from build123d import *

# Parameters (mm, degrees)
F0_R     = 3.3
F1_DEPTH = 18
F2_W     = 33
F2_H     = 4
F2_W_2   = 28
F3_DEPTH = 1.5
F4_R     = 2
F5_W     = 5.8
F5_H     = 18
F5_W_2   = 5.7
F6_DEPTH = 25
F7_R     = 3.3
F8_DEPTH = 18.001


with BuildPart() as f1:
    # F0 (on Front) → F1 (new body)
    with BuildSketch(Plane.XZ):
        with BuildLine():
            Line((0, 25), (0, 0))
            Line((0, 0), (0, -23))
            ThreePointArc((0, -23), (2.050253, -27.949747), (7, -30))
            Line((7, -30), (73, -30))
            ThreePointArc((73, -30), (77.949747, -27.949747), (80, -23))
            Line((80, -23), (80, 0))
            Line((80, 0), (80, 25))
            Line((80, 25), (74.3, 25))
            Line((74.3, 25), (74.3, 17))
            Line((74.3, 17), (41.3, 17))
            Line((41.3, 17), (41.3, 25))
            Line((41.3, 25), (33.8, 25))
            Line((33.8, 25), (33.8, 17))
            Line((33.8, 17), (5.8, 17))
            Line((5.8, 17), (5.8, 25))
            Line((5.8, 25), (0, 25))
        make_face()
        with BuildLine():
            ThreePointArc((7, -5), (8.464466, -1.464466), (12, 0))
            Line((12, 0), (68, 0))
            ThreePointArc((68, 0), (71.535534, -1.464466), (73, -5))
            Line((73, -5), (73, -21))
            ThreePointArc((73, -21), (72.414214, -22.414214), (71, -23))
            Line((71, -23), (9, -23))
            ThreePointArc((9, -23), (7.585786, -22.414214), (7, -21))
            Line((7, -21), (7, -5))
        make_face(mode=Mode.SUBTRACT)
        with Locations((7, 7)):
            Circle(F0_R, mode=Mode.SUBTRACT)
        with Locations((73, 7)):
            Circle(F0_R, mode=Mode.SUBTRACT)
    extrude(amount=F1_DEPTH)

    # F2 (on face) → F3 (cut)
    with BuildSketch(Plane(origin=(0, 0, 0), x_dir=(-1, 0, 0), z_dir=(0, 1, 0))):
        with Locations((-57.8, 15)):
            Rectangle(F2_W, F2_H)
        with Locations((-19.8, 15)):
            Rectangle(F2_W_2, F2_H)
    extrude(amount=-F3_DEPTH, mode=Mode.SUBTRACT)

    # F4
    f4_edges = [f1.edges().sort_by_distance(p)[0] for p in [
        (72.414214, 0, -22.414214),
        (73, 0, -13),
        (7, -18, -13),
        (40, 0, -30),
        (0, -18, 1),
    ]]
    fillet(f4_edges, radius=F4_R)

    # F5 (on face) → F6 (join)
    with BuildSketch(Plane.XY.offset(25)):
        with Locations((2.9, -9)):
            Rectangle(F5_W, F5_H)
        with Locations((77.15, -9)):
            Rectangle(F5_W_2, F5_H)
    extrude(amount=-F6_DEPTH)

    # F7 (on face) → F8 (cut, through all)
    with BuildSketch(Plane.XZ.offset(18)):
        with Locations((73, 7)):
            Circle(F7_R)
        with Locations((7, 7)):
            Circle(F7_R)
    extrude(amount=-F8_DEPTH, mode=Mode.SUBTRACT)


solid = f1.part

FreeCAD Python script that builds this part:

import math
import FreeCAD as App
import Part
import Sketcher
from FreeCAD import Vector
Q = App.Units.Quantity


def edges_at(feature, points):
    """Names of the edges that pass closest to the given points."""
    edges = feature.Shape.Edges
    near = lambda p: min(range(len(edges)), key=lambda i: edges[i].distToShape(Part.Vertex(*p))[0])
    return sorted({f"Edge{near(p) + 1}" for p in points})


def add_polygon(sketch, points):
    """Adds a closed chain of lines whose ends are joined by coincident constraints."""
    first, n = sketch.GeometryCount, len(points)
    for a, b in zip(points, points[1:] + points[:1]):
        sketch.addGeometry(Part.LineSegment(App.Vector(*a, 0), App.Vector(*b, 0)), False)
    for i in range(n):
        sketch.addConstraint(Sketcher.Constraint("Coincident", first + i, 2, first + (i + 1) % n, 1))

doc = App.newDocument("Part")
body = doc.addObject("PartDesign::Body", "Body")

# Sketch on XZ plane
sketch1 = doc.addObject("Sketcher::SketchObject", "Sketch")
body.addObject(sketch1)
sketch1.AttachmentSupport = (doc.XZ_Plane, [""])
sketch1.MapMode = "FlatFace"
sketch1.addGeometry([
    Part.LineSegment(Vector(0, 25, 0), Vector(0, -23, 0)),  # 0
    Part.ArcOfCircle(Part.Circle(Vector(7, -23, 0), Vector(0, 0, 1), 7), math.radians(-180), math.radians(-90)),  # 1
    Part.LineSegment(Vector(7, -30, 0), Vector(73, -30, 0)),  # 2
    Part.ArcOfCircle(Part.Circle(Vector(73, -23, 0), Vector(0, 0, 1), 7), math.radians(-90), math.radians(0)),  # 3
    Part.LineSegment(Vector(80, -23, 0), Vector(80, 25, 0)),  # 4
    Part.LineSegment(Vector(80, 25, 0), Vector(74.3, 25, 0)),  # 5
    Part.LineSegment(Vector(74.3, 25, 0), Vector(74.3, 17, 0)),  # 6
    Part.LineSegment(Vector(74.3, 17, 0), Vector(41.3, 17, 0)),  # 7
    Part.LineSegment(Vector(41.3, 17, 0), Vector(41.3, 25, 0)),  # 8
    Part.LineSegment(Vector(41.3, 25, 0), Vector(33.8, 25, 0)),  # 9
    Part.LineSegment(Vector(33.8, 25, 0), Vector(33.8, 17, 0)),  # 10
    Part.LineSegment(Vector(33.8, 17, 0), Vector(5.8, 17, 0)),  # 11
    Part.LineSegment(Vector(5.8, 17, 0), Vector(5.8, 25, 0)),  # 12
    Part.LineSegment(Vector(5.8, 25, 0), Vector(0, 25, 0)),  # 13
    Part.LineSegment(Vector(7, -21, 0), Vector(7, -5, 0)),  # 14
    Part.ArcOfCircle(Part.Circle(Vector(12, -5, 0), Vector(0, 0, 1), 5), math.radians(90), math.radians(180)),  # 15
    Part.LineSegment(Vector(12, 0, 0), Vector(68, 0, 0)),  # 16
    Part.ArcOfCircle(Part.Circle(Vector(68, -5, 0), Vector(0, 0, 1), 5), math.radians(0), math.radians(90)),  # 17
    Part.LineSegment(Vector(73, -5, 0), Vector(73, -21, 0)),  # 18
    Part.ArcOfCircle(Part.Circle(Vector(71, -21, 0), Vector(0, 0, 1), 2), math.radians(-90), math.radians(0)),  # 19
    Part.LineSegment(Vector(71, -23, 0), Vector(9, -23, 0)),  # 20
    Part.ArcOfCircle(Part.Circle(Vector(9, -21, 0), Vector(0, 0, 1), 2), math.radians(180), math.radians(270)),  # 21
    Part.Circle(Vector(7, 7, 0), Vector(0, 0, 1), 3.3),  # 22
    Part.Circle(Vector(73, 7, 0), Vector(0, 0, 1), 3.3),  # 23
], False)
sketch1.addConstraint([
    Sketcher.Constraint("Tangent", 0, 2, 1, 1),
    Sketcher.Constraint("Tangent", 1, 2, 2, 1),
    Sketcher.Constraint("Tangent", 2, 2, 3, 1),
    Sketcher.Constraint("Tangent", 3, 2, 4, 1),
    Sketcher.Constraint("Coincident", 4, 2, 5, 1),
    Sketcher.Constraint("Coincident", 5, 2, 6, 1),
    Sketcher.Constraint("Coincident", 6, 2, 7, 1),
    Sketcher.Constraint("Coincident", 7, 2, 8, 1),
    Sketcher.Constraint("Coincident", 8, 2, 9, 1),
    Sketcher.Constraint("Coincident", 9, 2, 10, 1),
    Sketcher.Constraint("Coincident", 10, 2, 11, 1),
    Sketcher.Constraint("Coincident", 11, 2, 12, 1),
    Sketcher.Constraint("Coincident", 12, 2, 13, 1),
    Sketcher.Constraint("Coincident", 13, 2, 0, 1),
    Sketcher.Constraint("Tangent", 14, 2, 15, 2),
    Sketcher.Constraint("Tangent", 15, 1, 16, 1),
    Sketcher.Constraint("Tangent", 16, 2, 17, 2),
    Sketcher.Constraint("Tangent", 17, 1, 18, 1),
    Sketcher.Constraint("Tangent", 18, 2, 19, 2),
    Sketcher.Constraint("Tangent", 19, 1, 20, 1),
    Sketcher.Constraint("Tangent", 20, 2, 21, 2),
    Sketcher.Constraint("Tangent", 21, 1, 14, 1),
    Sketcher.Constraint("Vertical", 0),
    Sketcher.Constraint("Horizontal", 2),
    Sketcher.Constraint("Vertical", 4),
    Sketcher.Constraint("Horizontal", 5),
    Sketcher.Constraint("Vertical", 6),
    Sketcher.Constraint("Horizontal", 7),
    Sketcher.Constraint("Vertical", 8),
    Sketcher.Constraint("Horizontal", 9),
    Sketcher.Constraint("Vertical", 10),
    Sketcher.Constraint("Horizontal", 11),
    Sketcher.Constraint("Vertical", 12),
    Sketcher.Constraint("Horizontal", 13),
    Sketcher.Constraint("Vertical", 14),
    Sketcher.Constraint("Horizontal", 16),
    Sketcher.Constraint("Vertical", 18),
    Sketcher.Constraint("Horizontal", 20),
    Sketcher.Constraint("Equal", 1, 3),
    Sketcher.Constraint("Equal", 15, 17),
    Sketcher.Constraint("Equal", 19, 21),
    Sketcher.Constraint("Equal", 22, 23),
    Sketcher.Constraint("PointOnObject", 0, 2, -2),
    Sketcher.Constraint("PointOnObject", 15, 1, -1),
    Sketcher.Constraint("Horizontal", 22, 3, 23, 3),
    Sketcher.Constraint("Horizontal", 5, 2, 8, 2),
    Sketcher.Constraint("Horizontal", 7, 2, 10, 2),
    Sketcher.Constraint("Horizontal", 9, 2, 12, 2),
    Sketcher.Constraint("Horizontal", 3, 2, 19, 1),
    Sketcher.Constraint("Vertical", 1, 3, 22, 3),
    Sketcher.Constraint("Vertical", 3, 3, 23, 3),
    Sketcher.Constraint("Vertical", 1, 2, 14, 2),
    Sketcher.Constraint("Vertical", 2, 2, 17, 1),
    Sketcher.Constraint("Radius", 1, Q("7.000002 mm")),
    Sketcher.Constraint("Radius", 15, Q("5 mm")),
    Sketcher.Constraint("Radius", 19, Q("1.999999 mm")),
    Sketcher.Constraint("Diameter", 22, Q("6.6 mm")),
    Sketcher.Constraint("DistanceX", 2, 1, 2, 2, Q("66 mm")),
    Sketcher.Constraint("DistanceX", 7, 2, 7, 1, Q("33 mm")),
    Sketcher.Constraint("DistanceX", 11, 2, 11, 1, Q("28 mm")),
    Sketcher.Constraint("DistanceY", 0, 2, 0, 1, Q("48 mm")),
    Sketcher.Constraint("DistanceY", 6, 2, 6, 1, Q("8 mm")),
    Sketcher.Constraint("DistanceY", 14, 1, 14, 2, Q("16 mm")),
    Sketcher.Constraint("DistanceX", 5, 2, 5, 1, Q("5.7 mm")),
    Sketcher.Constraint("DistanceX", 9, 2, 9, 1, Q("7.5 mm")),
    Sketcher.Constraint("DistanceY", -1, 1, 22, 3, Q("7 mm")),
])
pad1 = doc.addObject("PartDesign::Pad", "Pad")
body.addObject(pad1)
pad1.Profile = sketch1
pad1.Length = 18

# Sketch on XZ plane
sketch2 = doc.addObject("Sketcher::SketchObject", "Sketch001")
body.addObject(sketch2)
sketch2.AttachmentSupport = (doc.XZ_Plane, [""])
sketch2.MapMode = "FlatFace"
add_polygon(sketch2, [(74.3, 17), (74.3, 13), (41.3, 13), (41.3, 17)])  # lines 0-3
add_polygon(sketch2, [(33.8, 17), (33.8, 13), (5.8, 13), (5.8, 17)])  # lines 4-7
sketch2.addConstraint([
    Sketcher.Constraint("Vertical", 0),
    Sketcher.Constraint("Horizontal", 1),
    Sketcher.Constraint("Vertical", 2),
    Sketcher.Constraint("Horizontal", 3),
    Sketcher.Constraint("Vertical", 4),
    Sketcher.Constraint("Horizontal", 5),
    Sketcher.Constraint("Vertical", 6),
    Sketcher.Constraint("Horizontal", 7),
    Sketcher.Constraint("Horizontal", 1, 2, 4, 2),
    Sketcher.Constraint("Horizontal", 3, 2, 6, 2),
    Sketcher.Constraint("DistanceX", 1, 2, 1, 1, Q("33 mm")),
    Sketcher.Constraint("DistanceX", 5, 2, 5, 1, Q("28 mm")),
    Sketcher.Constraint("DistanceY", 0, 2, 0, 1, Q("4 mm")),
    Sketcher.Constraint("DistanceY", -1, 1, 0, 2, Q("13 mm")),
    Sketcher.Constraint("DistanceX", -1, 1, 0, 2, Q("74.3 mm")),
    Sketcher.Constraint("DistanceX", -1, 1, 4, 2, Q("33.8 mm")),
])
pocket1 = doc.addObject("PartDesign::Pocket", "Pocket")
body.addObject(pocket1)
pocket1.Profile = sketch2
pocket1.Length = 1.5
pocket1.Reversed = True
doc.recompute()

fillet = doc.addObject("PartDesign::Fillet", "Fillet")
body.addObject(fillet)
fillet.Base = (pocket1, edges_at(pocket1, [
    (72.414, 0, -22.414),
    (73, 0, -13),
    (7, -18, -13),
    (40, 0, -30),
    (0, -18, 1),
]))
fillet.Radius = 2

# Sketch on XY plane
sketch3 = doc.addObject("Sketcher::SketchObject", "Sketch002")
body.addObject(sketch3)
sketch3.AttachmentSupport = (doc.XY_Plane, [""])
sketch3.MapMode = "FlatFace"
sketch3.AttachmentOffset = App.Placement(Vector(0, 0, 25), App.Rotation())
add_polygon(sketch3, [(0, 0), (0, -18), (6, -18), (6, 0)])  # lines 0-3
add_polygon(sketch3, [(74, 0), (74, -18), (80, -18), (80, 0)])  # lines 4-7
sketch3.addConstraint([
    Sketcher.Constraint("Vertical", 0),
    Sketcher.Constraint("Horizontal", 1),
    Sketcher.Constraint("Vertical", 2),
    Sketcher.Constraint("Horizontal", 3),
    Sketcher.Constraint("Vertical", 4),
    Sketcher.Constraint("Horizontal", 5),
    Sketcher.Constraint("Vertical", 6),
    Sketcher.Constraint("Horizontal", 7),
    Sketcher.Constraint("Coincident", 3, 2, -1, 1),
    Sketcher.Constraint("PointOnObject", 6, 2, -1),
    Sketcher.Constraint("Horizontal", 1, 2, 4, 2),
    Sketcher.Constraint("DistanceY", 0, 2, 0, 1, Q("18 mm")),
    Sketcher.Constraint("DistanceX", 1, 1, 1, 2, Q("5.8 mm")),
    Sketcher.Constraint("DistanceX", 5, 1, 5, 2, Q("5.7 mm")),
    Sketcher.Constraint("DistanceX", -1, 1, 5, 2, Q("80 mm")),
])
pad2 = doc.addObject("PartDesign::Pad", "Pad001")
body.addObject(pad2)
pad2.Profile = sketch3
pad2.Length = 25
pad2.Reversed = True

# Sketch on XZ plane
sketch4 = doc.addObject("Sketcher::SketchObject", "Sketch003")
body.addObject(sketch4)
sketch4.AttachmentSupport = (doc.XZ_Plane, [""])
sketch4.MapMode = "FlatFace"
sketch4.AttachmentOffset = App.Placement(Vector(0, 0, 18), App.Rotation())
sketch4.addGeometry([
    Part.Circle(Vector(73, 7, 0), Vector(0, 0, 1), 3.3),
    Part.Circle(Vector(7, 7, 0), Vector(0, 0, 1), 3.3),
], False)
sketch4.addConstraint([
    Sketcher.Constraint("Equal", 0, 1),
    Sketcher.Constraint("Horizontal", 0, 3, 1, 3),
    Sketcher.Constraint("Diameter", 0, Q("6.6 mm")),
    Sketcher.Constraint("DistanceX", -1, 1, 0, 3, Q("73 mm")),
    Sketcher.Constraint("DistanceY", -1, 1, 0, 3, Q("7 mm")),
    Sketcher.Constraint("DistanceX", -1, 1, 1, 3, Q("7 mm")),
])
pocket2 = doc.addObject("PartDesign::Pocket", "Pocket001")
body.addObject(pocket2)
pocket2.Profile = sketch4
pocket2.Type = "ThroughAll"

doc.recompute()
